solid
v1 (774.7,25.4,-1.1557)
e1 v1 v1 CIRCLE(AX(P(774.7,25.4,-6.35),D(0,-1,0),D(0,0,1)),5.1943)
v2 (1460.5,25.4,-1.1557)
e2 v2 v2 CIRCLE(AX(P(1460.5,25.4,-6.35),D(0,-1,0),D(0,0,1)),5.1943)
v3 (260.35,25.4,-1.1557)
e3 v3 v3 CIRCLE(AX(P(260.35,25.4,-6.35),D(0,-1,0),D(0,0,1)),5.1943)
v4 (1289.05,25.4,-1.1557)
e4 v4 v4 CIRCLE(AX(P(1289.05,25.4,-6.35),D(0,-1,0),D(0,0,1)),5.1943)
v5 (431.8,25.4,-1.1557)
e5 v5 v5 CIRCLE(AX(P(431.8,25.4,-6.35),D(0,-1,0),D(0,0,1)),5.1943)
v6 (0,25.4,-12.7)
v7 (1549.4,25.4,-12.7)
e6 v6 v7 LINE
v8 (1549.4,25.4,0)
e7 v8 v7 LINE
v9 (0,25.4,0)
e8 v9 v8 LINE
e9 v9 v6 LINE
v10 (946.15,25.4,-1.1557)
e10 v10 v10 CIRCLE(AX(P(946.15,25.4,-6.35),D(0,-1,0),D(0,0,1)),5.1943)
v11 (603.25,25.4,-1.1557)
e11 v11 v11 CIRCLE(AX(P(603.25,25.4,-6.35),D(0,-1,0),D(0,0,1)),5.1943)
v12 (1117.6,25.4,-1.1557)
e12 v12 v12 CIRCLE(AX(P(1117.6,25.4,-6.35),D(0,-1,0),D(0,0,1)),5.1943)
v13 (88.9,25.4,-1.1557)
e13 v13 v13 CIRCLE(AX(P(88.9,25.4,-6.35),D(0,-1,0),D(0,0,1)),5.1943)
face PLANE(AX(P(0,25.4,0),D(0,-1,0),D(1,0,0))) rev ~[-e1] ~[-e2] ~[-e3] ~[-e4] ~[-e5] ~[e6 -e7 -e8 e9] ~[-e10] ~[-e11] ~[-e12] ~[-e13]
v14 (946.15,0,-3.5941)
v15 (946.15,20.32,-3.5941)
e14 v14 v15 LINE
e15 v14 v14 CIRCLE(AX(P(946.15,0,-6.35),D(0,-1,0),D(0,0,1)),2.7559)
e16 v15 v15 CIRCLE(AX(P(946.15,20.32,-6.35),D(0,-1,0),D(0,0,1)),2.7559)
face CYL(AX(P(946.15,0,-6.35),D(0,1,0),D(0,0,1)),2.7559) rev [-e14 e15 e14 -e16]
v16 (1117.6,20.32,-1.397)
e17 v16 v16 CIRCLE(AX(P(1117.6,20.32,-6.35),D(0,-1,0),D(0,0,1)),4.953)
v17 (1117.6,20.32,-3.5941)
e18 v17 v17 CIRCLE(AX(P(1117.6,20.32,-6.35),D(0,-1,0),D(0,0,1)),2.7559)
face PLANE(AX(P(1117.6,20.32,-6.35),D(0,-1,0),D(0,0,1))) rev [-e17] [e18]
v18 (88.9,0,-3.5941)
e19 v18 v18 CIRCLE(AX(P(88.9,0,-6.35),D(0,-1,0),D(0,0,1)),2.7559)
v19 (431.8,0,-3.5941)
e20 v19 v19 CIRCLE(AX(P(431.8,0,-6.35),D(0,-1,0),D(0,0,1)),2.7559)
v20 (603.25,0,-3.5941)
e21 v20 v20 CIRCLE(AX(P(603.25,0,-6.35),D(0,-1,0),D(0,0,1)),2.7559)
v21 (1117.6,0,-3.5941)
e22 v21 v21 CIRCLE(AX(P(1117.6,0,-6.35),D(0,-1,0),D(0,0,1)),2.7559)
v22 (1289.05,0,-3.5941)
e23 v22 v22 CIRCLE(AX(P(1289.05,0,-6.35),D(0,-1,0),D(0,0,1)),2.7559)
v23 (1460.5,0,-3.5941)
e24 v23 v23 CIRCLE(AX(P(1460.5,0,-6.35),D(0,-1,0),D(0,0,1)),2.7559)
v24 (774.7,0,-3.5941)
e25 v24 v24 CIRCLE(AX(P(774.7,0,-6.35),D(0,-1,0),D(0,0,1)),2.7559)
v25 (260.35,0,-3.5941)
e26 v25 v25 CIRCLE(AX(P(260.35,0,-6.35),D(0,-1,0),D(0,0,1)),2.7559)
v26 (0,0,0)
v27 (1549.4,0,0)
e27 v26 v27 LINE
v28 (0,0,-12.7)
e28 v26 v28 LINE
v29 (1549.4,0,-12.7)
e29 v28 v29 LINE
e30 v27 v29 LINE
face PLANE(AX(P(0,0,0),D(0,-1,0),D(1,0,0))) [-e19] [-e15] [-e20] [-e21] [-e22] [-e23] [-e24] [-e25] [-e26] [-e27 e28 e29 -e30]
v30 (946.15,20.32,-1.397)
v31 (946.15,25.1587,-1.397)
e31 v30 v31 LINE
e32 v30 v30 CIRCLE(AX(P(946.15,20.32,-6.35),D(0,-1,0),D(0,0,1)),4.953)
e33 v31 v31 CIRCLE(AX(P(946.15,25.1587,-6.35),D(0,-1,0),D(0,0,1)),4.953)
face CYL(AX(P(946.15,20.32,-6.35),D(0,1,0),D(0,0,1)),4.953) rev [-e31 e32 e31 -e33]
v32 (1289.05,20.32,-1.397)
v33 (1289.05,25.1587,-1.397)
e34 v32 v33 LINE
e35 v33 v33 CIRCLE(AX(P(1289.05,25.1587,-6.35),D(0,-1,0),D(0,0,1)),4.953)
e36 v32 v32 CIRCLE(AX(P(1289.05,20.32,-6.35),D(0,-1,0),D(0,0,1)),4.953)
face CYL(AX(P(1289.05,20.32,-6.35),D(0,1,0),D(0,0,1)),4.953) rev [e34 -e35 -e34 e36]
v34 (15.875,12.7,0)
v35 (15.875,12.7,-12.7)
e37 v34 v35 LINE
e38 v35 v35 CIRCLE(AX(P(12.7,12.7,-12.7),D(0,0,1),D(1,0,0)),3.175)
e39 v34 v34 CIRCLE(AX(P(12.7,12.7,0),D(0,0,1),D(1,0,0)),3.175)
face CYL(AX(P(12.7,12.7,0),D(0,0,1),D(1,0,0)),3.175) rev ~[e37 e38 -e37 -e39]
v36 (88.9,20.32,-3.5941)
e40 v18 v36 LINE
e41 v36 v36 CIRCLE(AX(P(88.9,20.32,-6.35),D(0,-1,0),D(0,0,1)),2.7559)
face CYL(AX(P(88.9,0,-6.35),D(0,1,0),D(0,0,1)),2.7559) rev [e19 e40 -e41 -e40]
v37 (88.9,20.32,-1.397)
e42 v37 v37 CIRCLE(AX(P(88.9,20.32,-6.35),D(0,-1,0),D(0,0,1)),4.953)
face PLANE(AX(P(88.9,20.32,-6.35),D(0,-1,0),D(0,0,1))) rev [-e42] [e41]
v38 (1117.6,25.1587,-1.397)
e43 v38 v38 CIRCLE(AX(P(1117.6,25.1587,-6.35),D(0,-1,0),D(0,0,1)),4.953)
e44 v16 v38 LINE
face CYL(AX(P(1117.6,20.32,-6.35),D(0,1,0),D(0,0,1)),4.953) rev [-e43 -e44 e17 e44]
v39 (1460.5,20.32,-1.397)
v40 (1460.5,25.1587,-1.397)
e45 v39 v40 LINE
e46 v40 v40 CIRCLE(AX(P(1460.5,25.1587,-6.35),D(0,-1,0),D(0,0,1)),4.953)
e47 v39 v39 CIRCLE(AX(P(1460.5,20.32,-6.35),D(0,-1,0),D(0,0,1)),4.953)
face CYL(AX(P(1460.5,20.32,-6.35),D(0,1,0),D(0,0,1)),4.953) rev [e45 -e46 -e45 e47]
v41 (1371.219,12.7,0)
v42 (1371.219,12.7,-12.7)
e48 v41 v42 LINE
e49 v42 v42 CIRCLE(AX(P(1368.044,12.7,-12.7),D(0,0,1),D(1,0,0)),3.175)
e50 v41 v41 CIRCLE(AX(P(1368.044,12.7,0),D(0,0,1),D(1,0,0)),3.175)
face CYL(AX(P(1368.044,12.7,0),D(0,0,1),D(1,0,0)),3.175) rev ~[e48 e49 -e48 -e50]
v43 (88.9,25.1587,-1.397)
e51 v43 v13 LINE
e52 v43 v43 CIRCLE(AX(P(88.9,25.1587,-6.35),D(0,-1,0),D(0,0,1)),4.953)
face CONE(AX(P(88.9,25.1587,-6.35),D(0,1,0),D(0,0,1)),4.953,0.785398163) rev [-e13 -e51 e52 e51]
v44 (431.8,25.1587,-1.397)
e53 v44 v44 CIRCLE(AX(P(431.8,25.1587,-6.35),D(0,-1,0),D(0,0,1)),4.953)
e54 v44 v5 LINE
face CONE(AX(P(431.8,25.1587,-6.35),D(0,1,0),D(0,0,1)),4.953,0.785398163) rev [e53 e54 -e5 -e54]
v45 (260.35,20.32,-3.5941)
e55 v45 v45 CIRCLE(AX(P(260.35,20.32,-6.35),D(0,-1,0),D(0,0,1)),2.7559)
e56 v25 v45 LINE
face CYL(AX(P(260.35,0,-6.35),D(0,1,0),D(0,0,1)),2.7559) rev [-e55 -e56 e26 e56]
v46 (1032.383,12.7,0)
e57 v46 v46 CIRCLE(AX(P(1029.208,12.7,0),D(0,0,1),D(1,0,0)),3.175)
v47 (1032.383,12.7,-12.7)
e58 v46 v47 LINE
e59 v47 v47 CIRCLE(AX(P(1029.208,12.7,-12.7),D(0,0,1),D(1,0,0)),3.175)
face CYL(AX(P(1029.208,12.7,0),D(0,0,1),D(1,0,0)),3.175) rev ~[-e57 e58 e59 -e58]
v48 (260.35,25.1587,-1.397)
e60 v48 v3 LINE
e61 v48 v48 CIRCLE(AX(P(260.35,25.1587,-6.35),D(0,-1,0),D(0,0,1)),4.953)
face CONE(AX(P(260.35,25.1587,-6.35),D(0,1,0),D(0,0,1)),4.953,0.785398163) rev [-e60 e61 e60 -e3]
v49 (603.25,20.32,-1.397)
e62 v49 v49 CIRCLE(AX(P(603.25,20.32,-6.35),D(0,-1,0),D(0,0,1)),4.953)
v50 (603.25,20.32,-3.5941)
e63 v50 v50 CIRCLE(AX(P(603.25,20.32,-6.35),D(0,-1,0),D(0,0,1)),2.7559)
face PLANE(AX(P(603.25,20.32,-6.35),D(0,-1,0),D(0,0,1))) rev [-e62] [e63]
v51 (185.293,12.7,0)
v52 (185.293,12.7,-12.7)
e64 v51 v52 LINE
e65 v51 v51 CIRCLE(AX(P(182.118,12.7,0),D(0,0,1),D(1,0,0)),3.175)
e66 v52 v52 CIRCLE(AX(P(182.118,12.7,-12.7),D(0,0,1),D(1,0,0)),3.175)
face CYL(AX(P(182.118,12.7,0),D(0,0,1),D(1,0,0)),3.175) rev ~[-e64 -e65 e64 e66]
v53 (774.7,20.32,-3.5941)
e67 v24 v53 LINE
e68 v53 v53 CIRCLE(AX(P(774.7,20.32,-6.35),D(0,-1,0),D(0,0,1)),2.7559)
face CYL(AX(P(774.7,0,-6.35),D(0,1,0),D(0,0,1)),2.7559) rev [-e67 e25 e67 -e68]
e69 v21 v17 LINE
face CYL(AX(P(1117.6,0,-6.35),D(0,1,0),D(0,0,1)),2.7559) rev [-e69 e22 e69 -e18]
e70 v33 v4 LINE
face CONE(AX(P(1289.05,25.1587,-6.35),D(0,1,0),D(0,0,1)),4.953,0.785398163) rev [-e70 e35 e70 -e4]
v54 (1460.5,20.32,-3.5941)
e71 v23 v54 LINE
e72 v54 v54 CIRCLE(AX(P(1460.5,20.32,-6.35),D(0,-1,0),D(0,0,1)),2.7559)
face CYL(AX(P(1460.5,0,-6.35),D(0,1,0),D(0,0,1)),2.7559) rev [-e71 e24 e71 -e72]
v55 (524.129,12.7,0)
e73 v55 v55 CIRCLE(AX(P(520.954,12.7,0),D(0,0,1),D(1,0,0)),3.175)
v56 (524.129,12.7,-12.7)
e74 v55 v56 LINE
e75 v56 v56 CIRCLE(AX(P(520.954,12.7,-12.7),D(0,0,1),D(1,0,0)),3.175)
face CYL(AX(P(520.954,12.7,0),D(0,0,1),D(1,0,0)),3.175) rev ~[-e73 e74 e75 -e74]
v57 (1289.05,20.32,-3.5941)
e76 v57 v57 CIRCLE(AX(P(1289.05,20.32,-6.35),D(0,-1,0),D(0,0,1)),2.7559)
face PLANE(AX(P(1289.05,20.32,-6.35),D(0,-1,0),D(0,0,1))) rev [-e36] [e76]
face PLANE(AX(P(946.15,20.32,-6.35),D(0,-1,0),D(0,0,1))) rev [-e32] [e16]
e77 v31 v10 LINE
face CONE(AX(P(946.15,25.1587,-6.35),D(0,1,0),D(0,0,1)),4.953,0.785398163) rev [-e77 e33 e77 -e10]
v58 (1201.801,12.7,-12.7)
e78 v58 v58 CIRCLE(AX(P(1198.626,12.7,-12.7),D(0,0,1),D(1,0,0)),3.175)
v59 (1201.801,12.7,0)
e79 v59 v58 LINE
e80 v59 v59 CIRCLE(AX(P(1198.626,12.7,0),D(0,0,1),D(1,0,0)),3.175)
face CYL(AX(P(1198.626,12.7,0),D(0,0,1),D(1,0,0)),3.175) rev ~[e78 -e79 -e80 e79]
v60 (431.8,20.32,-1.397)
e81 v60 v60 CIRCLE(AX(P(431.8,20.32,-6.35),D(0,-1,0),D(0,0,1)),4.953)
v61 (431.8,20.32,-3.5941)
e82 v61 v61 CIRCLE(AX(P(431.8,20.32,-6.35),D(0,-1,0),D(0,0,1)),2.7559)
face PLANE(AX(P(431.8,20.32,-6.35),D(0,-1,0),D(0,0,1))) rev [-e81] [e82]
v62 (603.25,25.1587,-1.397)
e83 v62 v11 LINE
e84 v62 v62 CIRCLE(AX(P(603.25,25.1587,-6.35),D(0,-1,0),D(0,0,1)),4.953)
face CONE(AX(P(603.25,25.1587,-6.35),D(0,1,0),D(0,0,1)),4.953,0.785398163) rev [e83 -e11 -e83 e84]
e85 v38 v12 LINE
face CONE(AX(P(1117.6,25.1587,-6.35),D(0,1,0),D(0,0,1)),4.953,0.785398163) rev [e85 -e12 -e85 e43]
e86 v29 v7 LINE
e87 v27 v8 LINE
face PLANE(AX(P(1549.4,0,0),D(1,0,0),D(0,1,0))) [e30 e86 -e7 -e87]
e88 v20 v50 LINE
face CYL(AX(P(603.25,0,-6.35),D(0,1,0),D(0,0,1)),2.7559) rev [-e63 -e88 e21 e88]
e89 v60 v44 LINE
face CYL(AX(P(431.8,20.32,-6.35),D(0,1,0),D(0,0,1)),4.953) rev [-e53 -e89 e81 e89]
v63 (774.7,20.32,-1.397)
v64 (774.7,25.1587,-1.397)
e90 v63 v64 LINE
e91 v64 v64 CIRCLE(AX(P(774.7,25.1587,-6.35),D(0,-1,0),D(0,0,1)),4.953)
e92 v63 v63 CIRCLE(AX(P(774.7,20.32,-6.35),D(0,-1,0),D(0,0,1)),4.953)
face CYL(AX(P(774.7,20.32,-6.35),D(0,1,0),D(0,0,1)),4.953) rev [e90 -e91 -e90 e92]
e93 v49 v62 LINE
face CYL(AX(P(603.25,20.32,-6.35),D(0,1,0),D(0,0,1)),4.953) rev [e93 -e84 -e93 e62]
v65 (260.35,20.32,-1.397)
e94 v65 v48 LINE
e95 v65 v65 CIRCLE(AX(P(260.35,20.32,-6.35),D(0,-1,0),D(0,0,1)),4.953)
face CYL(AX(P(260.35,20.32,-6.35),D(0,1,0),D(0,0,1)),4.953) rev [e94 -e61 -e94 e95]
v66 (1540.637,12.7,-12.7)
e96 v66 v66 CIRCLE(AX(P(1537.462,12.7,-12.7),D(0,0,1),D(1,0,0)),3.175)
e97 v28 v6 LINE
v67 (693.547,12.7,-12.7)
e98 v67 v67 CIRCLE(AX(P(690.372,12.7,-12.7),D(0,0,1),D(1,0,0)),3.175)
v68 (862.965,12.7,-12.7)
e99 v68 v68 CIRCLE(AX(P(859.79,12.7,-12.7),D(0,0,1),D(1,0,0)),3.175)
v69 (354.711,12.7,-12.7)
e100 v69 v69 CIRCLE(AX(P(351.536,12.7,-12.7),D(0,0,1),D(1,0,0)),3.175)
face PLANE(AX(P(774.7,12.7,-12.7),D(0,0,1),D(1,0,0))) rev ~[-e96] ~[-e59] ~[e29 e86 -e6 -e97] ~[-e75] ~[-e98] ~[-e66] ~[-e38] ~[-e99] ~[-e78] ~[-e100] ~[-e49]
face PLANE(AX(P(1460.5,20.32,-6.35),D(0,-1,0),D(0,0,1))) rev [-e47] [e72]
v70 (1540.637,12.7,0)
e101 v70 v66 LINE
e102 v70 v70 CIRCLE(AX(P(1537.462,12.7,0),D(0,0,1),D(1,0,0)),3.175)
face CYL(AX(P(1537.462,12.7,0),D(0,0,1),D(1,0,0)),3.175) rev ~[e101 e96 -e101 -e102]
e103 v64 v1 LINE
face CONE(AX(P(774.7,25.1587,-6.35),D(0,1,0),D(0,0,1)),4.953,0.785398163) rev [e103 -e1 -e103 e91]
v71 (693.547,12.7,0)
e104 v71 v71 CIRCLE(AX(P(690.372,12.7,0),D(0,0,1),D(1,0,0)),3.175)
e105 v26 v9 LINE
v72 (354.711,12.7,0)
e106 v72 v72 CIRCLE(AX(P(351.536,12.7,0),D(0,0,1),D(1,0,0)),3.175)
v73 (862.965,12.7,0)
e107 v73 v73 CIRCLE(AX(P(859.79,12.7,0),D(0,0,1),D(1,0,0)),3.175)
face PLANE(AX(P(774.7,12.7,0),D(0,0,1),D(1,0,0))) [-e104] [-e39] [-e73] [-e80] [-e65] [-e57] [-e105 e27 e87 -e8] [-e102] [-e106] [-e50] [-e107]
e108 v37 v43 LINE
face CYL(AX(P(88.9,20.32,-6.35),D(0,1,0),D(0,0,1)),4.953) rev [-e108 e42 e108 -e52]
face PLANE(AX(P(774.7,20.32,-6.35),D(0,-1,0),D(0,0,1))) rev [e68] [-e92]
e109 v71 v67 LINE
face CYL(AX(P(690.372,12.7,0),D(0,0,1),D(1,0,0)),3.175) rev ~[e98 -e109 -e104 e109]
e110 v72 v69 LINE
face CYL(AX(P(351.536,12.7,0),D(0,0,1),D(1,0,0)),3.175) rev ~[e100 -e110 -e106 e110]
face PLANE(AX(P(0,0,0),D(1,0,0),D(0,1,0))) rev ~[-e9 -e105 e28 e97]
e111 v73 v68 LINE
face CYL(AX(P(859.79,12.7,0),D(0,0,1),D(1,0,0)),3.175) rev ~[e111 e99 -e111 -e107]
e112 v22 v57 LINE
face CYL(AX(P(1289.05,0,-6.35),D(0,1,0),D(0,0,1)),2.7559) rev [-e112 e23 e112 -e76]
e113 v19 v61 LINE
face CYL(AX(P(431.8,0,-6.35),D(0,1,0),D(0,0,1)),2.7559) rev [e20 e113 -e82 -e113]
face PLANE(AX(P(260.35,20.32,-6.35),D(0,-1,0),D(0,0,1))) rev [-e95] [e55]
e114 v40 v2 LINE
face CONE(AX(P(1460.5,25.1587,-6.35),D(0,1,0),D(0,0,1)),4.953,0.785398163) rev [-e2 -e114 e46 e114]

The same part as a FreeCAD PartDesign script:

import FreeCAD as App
import Part
import Sketcher
from FreeCAD import Vector
Q = App.Units.Quantity

doc = App.newDocument("Part")
body = doc.addObject("PartDesign::Body", "Body")

# Sketch on XY plane
sketch1 = body.newObject("Sketcher::SketchObject", "Sketch")
sketch1.AttachmentSupport = (doc.getObject("XY_Plane"), [""])
sketch1.MapMode = "FlatFace"
sketch1.addGeometry([
    Part.LineSegment(Vector(0, 25.4, 0), Vector(0, 0, 0)),  # 0
    Part.LineSegment(Vector(0, 0, 0), Vector(1549.4, 0, 0)),  # 1
    Part.LineSegment(Vector(1549.4, 0, 0), Vector(1549.4, 25.4, 0)),  # 2
    Part.LineSegment(Vector(1549.4, 25.4, 0), Vector(0, 25.4, 0)),  # 3
    Part.Circle(Vector(12.7, 12.7, 0), Vector(0, 0, 1), 3.2),  # 4
    Part.Circle(Vector(182.1, 12.7, 0), Vector(0, 0, 1), 3.2),  # 5
    Part.Circle(Vector(351.5, 12.7, 0), Vector(0, 0, 1), 3.2),  # 6
    Part.Circle(Vector(521, 12.7, 0), Vector(0, 0, 1), 3.2),  # 7
    Part.Circle(Vector(690.4, 12.7, 0), Vector(0, 0, 1), 3.2),  # 8
    Part.Circle(Vector(859.8, 12.7, 0), Vector(0, 0, 1), 3.2),  # 9
    Part.Circle(Vector(1029.2, 12.7, 0), Vector(0, 0, 1), 3.2),  # 10
    Part.Circle(Vector(1198.6, 12.7, 0), Vector(0, 0, 1), 3.2),  # 11
    Part.Circle(Vector(1368, 12.7, 0), Vector(0, 0, 1), 3.2),  # 12
    Part.Circle(Vector(1537.5, 12.7, 0), Vector(0, 0, 1), 3.2),  # 13
], False)
sketch1.addConstraint([
    Sketcher.Constraint("Coincident", 0, 2, 1, 1),
    Sketcher.Constraint("Coincident", 1, 2, 2, 1),
    Sketcher.Constraint("Coincident", 2, 2, 3, 1),
    Sketcher.Constraint("Coincident", 3, 2, 0, 1),
    Sketcher.Constraint("Vertical", 0),
    Sketcher.Constraint("Horizontal", 1),
    Sketcher.Constraint("Vertical", 2),
    Sketcher.Constraint("Horizontal", 3),
    Sketcher.Constraint("Coincident", 0, 2, -1, 1),
    Sketcher.Constraint("Equal", 4, 5),
    Sketcher.Constraint("Equal", 5, 6),
    Sketcher.Constraint("Equal", 6, 7),
    Sketcher.Constraint("Equal", 7, 8),
    Sketcher.Constraint("Equal", 8, 9),
    Sketcher.Constraint("Equal", 9, 10),
    Sketcher.Constraint("Equal", 10, 11),
    Sketcher.Constraint("Equal", 11, 12),
    Sketcher.Constraint("Equal", 12, 13),
    Sketcher.Constraint("Horizontal", 4, 3, 5, 3),
    Sketcher.Constraint("Horizontal", 5, 3, 6, 3),
    Sketcher.Constraint("Horizontal", 6, 3, 7, 3),
    Sketcher.Constraint("Horizontal", 7, 3, 8, 3),
    Sketcher.Constraint("Horizontal", 8, 3, 9, 3),
    Sketcher.Constraint("Horizontal", 9, 3, 10, 3),
    Sketcher.Constraint("Horizontal", 10, 3, 11, 3),
    Sketcher.Constraint("Horizontal", 11, 3, 12, 3),
    Sketcher.Constraint("Horizontal", 12, 3, 13, 3),
    Sketcher.Constraint("Diameter", 4, Q("0.25 in")),
    Sketcher.Constraint("DistanceX", 1, 1, 1, 2, Q("61 in")),
    Sketcher.Constraint("DistanceY", 0, 2, 0, 1, Q("1 in")),
    Sketcher.Constraint("DistanceX", -1, 1, 4, 3, Q("0.5 in")),
    Sketcher.Constraint("DistanceY", -1, 1, 4, 3, Q("0.5 in")),
    Sketcher.Constraint("DistanceX", -1, 1, 5, 3, Q("7.17 in")),
    Sketcher.Constraint("DistanceX", -1, 1, 6, 3, Q("13.84 in")),
    Sketcher.Constraint("DistanceX", -1, 1, 7, 3, Q("20.51 in")),
    Sketcher.Constraint("DistanceX", -1, 1, 8, 3, Q("27.18 in")),
    Sketcher.Constraint("DistanceX", -1, 1, 9, 3, Q("33.85 in")),
    Sketcher.Constraint("DistanceX", -1, 1, 10, 3, Q("40.52 in")),
    Sketcher.Constraint("DistanceX", -1, 1, 11, 3, Q("47.19 in")),
    Sketcher.Constraint("DistanceX", -1, 1, 12, 3, Q("53.86 in")),
    Sketcher.Constraint("DistanceX", -1, 1, 13, 3, Q("60.53 in")),
])
pad1 = body.newObject("PartDesign::Pad", "Pad")
pad1.Profile = sketch1
pad1.Length = Q("0.5 in")
pad1.Reversed = True

# Sketch on YZ plane
sketch2 = body.newObject("Sketcher::SketchObject", "Sketch001")
sketch2.AttachmentSupport = (doc.getObject("YZ_Plane"), [""])
sketch2.MapMode = "FlatFace"
sketch2.AttachmentOffset = App.Placement(Vector(0, 0, 3.5 * 25.4), App.Rotation())
sketch2.addGeometry([
    Part.LineSegment(Vector(0, -6.35, 0), Vector(25.4, -6.35, 0)),  # 0
    Part.LineSegment(Vector(25.4, -6.35, 0), Vector(25.4, -1.16, 0)),  # 1
    Part.LineSegment(Vector(25.4, -1.16, 0), Vector(25.16, -1.4, 0)),  # 2
    Part.LineSegment(Vector(25.16, -1.4, 0), Vector(20.32, -1.4, 0)),  # 3
    Part.LineSegment(Vector(20.32, -1.4, 0), Vector(20.32, -3.59, 0)),  # 4
    Part.LineSegment(Vector(20.32, -3.59, 0), Vector(0, -3.59, 0)),  # 5
    Part.LineSegment(Vector(0, -3.59, 0), Vector(0, -6.35, 0)),  # 6
], False)
sketch2.addGeometry(Part.LineSegment(Vector(25.4, -6.35, 0), Vector(0, -6.35, 0)), True)  # axis
sketch2.addConstraint([
    Sketcher.Constraint("Coincident", 0, 2, 1, 1),
    Sketcher.Constraint("Coincident", 1, 2, 2, 1),
    Sketcher.Constraint("Coincident", 2, 2, 3, 1),
    Sketcher.Constraint("Coincident", 3, 2, 4, 1),
    Sketcher.Constraint("Coincident", 4, 2, 5, 1),
    Sketcher.Constraint("Coincident", 5, 2, 6, 1),
    Sketcher.Constraint("Coincident", 6, 2, 0, 1),
    Sketcher.Constraint("Horizontal", 0),
    Sketcher.Constraint("Vertical", 1),
    Sketcher.Constraint("Horizontal", 3),
    Sketcher.Constraint("Vertical", 4),
    Sketcher.Constraint("Horizontal", 5),
    Sketcher.Constraint("Vertical", 6),
    Sketcher.Constraint("Horizontal", 7),
    Sketcher.Constraint("Coincident", 7, 1, 0, 2),
    Sketcher.Constraint("PointOnObject", 5, 2, -2),
    Sketcher.Constraint("PointOnObject", 7, 2, -2),
    Sketcher.Constraint("DistanceX", 0, 1, 0, 2, Q("1 in")),
    Sketcher.Constraint("DistanceX", 5, 2, 5, 1, Q("0.8 in")),
    Sketcher.Constraint("Angle", 2, Q("-135 deg")),
    Sketcher.Constraint("DistanceY", 0, 2, -1, 1, Q("0.25 in")),
    Sketcher.Constraint("DistanceX", 3, 2, 3, 1, Q("0.1905 in")),
    Sketcher.Constraint("DistanceY", 1, 1, 1, 2, Q("0.2045 in")),
    Sketcher.Constraint("DistanceY", 4, 2, 4, 1, Q("0.0865 in")),
])
groove = body.newObject("PartDesign::Groove", "Groove")
groove.Profile = sketch2
groove.ReferenceAxis = (sketch2, ["Axis0"])
groove.Angle = 360
doc.recompute()

linearpattern = body.newObject("PartDesign::LinearPattern", "LinearPattern")
linearpattern.Originals = [groove]
linearpattern.Direction = (doc.getObject("X_Axis"), [""])
linearpattern.Mode = "offset"
linearpattern.Offset = Q("6.75 in")
linearpattern.Occurrences = 9
body.Tip = linearpattern

doc.recompute()
